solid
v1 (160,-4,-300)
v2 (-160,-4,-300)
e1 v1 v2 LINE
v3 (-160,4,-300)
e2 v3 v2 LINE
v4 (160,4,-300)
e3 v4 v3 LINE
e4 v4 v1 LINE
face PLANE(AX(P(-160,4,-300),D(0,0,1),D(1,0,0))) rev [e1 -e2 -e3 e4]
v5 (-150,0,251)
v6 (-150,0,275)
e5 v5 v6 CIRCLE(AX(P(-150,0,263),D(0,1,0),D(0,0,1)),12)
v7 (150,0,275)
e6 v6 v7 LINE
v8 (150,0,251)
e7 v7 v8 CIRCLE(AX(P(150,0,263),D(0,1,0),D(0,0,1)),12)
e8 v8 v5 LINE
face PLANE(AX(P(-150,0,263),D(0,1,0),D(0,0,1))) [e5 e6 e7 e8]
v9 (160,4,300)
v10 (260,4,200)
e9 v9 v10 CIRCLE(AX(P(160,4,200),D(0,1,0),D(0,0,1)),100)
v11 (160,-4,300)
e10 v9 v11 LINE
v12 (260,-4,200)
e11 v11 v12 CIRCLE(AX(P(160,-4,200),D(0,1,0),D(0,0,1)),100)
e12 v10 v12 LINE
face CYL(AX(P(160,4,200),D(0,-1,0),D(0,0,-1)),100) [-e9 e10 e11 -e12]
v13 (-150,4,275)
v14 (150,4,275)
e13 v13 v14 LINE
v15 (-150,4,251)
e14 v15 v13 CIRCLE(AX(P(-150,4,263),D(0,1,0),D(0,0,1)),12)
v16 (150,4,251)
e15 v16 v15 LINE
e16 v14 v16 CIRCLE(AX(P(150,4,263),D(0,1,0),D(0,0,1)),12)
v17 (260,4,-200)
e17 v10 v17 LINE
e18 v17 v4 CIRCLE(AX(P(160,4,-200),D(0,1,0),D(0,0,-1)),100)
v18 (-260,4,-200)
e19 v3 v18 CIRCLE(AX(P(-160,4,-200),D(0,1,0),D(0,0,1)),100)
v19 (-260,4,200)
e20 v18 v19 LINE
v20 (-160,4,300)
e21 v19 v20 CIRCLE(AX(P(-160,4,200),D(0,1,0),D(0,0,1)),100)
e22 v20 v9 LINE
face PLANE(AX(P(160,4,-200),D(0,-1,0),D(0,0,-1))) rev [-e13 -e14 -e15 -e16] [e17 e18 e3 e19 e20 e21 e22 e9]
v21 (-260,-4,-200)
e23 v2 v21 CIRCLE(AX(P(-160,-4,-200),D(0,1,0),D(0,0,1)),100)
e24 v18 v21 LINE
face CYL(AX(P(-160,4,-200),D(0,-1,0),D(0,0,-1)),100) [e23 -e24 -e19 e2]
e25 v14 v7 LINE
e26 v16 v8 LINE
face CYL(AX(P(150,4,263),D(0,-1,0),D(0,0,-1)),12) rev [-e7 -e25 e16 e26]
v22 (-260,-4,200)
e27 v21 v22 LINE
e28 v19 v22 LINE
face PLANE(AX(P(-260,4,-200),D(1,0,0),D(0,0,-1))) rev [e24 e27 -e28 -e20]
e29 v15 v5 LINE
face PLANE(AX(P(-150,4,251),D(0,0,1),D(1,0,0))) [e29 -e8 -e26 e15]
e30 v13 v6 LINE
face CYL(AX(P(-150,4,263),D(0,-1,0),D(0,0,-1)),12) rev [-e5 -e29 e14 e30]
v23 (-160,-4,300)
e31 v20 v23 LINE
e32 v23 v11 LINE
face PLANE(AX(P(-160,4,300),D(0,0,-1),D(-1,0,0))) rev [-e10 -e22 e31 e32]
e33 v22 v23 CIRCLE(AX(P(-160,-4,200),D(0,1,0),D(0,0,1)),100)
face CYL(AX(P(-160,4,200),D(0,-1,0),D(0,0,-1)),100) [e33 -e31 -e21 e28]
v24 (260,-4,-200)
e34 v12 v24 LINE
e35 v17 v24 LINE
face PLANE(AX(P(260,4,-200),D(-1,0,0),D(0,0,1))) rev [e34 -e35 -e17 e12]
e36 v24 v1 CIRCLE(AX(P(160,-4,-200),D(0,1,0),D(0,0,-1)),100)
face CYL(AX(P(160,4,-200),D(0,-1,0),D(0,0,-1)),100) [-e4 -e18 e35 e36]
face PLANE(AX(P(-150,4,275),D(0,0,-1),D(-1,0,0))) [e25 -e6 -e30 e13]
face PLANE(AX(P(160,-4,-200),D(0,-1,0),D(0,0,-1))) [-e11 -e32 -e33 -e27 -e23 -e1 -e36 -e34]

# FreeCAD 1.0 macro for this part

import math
import FreeCAD as App
import Part
import Sketcher
from FreeCAD import Vector
Q = App.Units.Quantity

doc = App.newDocument("Part")
body = doc.addObject("PartDesign::Body", "Body")

sketch1 = doc.addObject("Sketcher::SketchObject", "Sketch")
body.addObject(sketch1)
sketch1.AttachmentSupport = (doc.XZ_Plane, [""])
sketch1.MapMode = "FlatFace"
sketch1.addGeometry([
    Part.LineSegment(Vector(160, -300, 0), Vector(-160, -300, 0)),
    Part.ArcOfCircle(Part.Circle(Vector(-160, -200, 0), Vector(0, 0, 1), 100), math.radians(180), math.radians(270)),
    Part.LineSegment(Vector(-260, -200, 0), Vector(-260, 200, 0)),
    Part.ArcOfCircle(Part.Circle(Vector(-160, 200, 0), Vector(0, 0, 1), 100), math.radians(90), math.radians(180)),
    Part.LineSegment(Vector(-160, 300, 0), Vector(160, 300, 0)),
    Part.ArcOfCircle(Part.Circle(Vector(160, 200, 0), Vector(0, 0, 1), 100), math.radians(0), math.radians(90)),
    Part.LineSegment(Vector(260, 200, 0), Vector(260, -200, 0)),
    Part.ArcOfCircle(Part.Circle(Vector(160, -200, 0), Vector(0, 0, 1), 100), math.radians(-90), math.radians(0)),
], False)
sketch1.addConstraint([
    Sketcher.Constraint("Tangent", 0, 2, 1, 2),
    Sketcher.Constraint("Tangent", 1, 1, 2, 1),
    Sketcher.Constraint("Tangent", 2, 2, 3, 2),
    Sketcher.Constraint("Tangent", 3, 1, 4, 1),
    Sketcher.Constraint("Tangent", 4, 2, 5, 2),
    Sketcher.Constraint("Tangent", 5, 1, 6, 1),
    Sketcher.Constraint("Tangent", 6, 2, 7, 2),
    Sketcher.Constraint("Tangent", 7, 1, 0, 1),
    Sketcher.Constraint("Horizontal", 0),
    Sketcher.Constraint("Vertical", 2),
    Sketcher.Constraint("Horizontal", 4),
    Sketcher.Constraint("Vertical", 6),
    Sketcher.Constraint("Equal", 1, 3),
    Sketcher.Constraint("Equal", 3, 5),
    Sketcher.Constraint("Equal", 5, 7),
    Sketcher.Constraint("Symmetric", 1, 3, 5, 3, -1, 1),
    Sketcher.Constraint("Radius", 1, Q("100 mm")),
    Sketcher.Constraint("DistanceX", 0, 2, 0, 1, Q("320 mm")),
    Sketcher.Constraint("DistanceY", 2, 1, 2, 2, Q("400 mm")),
])
pad1 = doc.addObject("PartDesign::Pad", "Pad")
body.addObject(pad1)
pad1.Profile = sketch1
pad1.Length = 8
pad1.Midplane = True

sketch2 = doc.addObject("Sketcher::SketchObject", "Sketch001")
body.addObject(sketch2)
sketch2.AttachmentSupport = (doc.XZ_Plane, [""])
sketch2.MapMode = "FlatFace"
sketch2.addGeometry([
    Part.LineSegment(Vector(150, 251, 0), Vector(-150, 251, 0)),
    Part.ArcOfCircle(Part.Circle(Vector(-150, 263, 0), Vector(0, 0, 1), 12), math.radians(90), math.radians(270)),
    Part.LineSegment(Vector(-150, 275, 0), Vector(150, 275, 0)),
    Part.ArcOfCircle(Part.Circle(Vector(150, 263, 0), Vector(0, 0, 1), 12), math.radians(-90), math.radians(90)),
], False)
sketch2.addConstraint([
    Sketcher.Constraint("Tangent", 0, 2, 1, 2),
    Sketcher.Constraint("Tangent", 1, 1, 2, 1),
    Sketcher.Constraint("Tangent", 2, 2, 3, 2),
    Sketcher.Constraint("Tangent", 3, 1, 0, 1),
    Sketcher.Constraint("Horizontal", 0),
    Sketcher.Constraint("Horizontal", 2),
    Sketcher.Constraint("Radius", 1, Q("12 mm")),
    Sketcher.Constraint("DistanceX", 0, 2, 0, 1, Q("300 mm")),
    Sketcher.Constraint("DistanceX", 1, 3, -1, 1, Q("150 mm")),
    Sketcher.Constraint("DistanceY", -1, 1, 1, 3, Q("263 mm")),
])
pocket1 = doc.addObject("PartDesign::Pocket", "Pocket")
body.addObject(pocket1)
pocket1.Profile = sketch2
pocket1.Type = "ThroughAll"

doc.recompute()
